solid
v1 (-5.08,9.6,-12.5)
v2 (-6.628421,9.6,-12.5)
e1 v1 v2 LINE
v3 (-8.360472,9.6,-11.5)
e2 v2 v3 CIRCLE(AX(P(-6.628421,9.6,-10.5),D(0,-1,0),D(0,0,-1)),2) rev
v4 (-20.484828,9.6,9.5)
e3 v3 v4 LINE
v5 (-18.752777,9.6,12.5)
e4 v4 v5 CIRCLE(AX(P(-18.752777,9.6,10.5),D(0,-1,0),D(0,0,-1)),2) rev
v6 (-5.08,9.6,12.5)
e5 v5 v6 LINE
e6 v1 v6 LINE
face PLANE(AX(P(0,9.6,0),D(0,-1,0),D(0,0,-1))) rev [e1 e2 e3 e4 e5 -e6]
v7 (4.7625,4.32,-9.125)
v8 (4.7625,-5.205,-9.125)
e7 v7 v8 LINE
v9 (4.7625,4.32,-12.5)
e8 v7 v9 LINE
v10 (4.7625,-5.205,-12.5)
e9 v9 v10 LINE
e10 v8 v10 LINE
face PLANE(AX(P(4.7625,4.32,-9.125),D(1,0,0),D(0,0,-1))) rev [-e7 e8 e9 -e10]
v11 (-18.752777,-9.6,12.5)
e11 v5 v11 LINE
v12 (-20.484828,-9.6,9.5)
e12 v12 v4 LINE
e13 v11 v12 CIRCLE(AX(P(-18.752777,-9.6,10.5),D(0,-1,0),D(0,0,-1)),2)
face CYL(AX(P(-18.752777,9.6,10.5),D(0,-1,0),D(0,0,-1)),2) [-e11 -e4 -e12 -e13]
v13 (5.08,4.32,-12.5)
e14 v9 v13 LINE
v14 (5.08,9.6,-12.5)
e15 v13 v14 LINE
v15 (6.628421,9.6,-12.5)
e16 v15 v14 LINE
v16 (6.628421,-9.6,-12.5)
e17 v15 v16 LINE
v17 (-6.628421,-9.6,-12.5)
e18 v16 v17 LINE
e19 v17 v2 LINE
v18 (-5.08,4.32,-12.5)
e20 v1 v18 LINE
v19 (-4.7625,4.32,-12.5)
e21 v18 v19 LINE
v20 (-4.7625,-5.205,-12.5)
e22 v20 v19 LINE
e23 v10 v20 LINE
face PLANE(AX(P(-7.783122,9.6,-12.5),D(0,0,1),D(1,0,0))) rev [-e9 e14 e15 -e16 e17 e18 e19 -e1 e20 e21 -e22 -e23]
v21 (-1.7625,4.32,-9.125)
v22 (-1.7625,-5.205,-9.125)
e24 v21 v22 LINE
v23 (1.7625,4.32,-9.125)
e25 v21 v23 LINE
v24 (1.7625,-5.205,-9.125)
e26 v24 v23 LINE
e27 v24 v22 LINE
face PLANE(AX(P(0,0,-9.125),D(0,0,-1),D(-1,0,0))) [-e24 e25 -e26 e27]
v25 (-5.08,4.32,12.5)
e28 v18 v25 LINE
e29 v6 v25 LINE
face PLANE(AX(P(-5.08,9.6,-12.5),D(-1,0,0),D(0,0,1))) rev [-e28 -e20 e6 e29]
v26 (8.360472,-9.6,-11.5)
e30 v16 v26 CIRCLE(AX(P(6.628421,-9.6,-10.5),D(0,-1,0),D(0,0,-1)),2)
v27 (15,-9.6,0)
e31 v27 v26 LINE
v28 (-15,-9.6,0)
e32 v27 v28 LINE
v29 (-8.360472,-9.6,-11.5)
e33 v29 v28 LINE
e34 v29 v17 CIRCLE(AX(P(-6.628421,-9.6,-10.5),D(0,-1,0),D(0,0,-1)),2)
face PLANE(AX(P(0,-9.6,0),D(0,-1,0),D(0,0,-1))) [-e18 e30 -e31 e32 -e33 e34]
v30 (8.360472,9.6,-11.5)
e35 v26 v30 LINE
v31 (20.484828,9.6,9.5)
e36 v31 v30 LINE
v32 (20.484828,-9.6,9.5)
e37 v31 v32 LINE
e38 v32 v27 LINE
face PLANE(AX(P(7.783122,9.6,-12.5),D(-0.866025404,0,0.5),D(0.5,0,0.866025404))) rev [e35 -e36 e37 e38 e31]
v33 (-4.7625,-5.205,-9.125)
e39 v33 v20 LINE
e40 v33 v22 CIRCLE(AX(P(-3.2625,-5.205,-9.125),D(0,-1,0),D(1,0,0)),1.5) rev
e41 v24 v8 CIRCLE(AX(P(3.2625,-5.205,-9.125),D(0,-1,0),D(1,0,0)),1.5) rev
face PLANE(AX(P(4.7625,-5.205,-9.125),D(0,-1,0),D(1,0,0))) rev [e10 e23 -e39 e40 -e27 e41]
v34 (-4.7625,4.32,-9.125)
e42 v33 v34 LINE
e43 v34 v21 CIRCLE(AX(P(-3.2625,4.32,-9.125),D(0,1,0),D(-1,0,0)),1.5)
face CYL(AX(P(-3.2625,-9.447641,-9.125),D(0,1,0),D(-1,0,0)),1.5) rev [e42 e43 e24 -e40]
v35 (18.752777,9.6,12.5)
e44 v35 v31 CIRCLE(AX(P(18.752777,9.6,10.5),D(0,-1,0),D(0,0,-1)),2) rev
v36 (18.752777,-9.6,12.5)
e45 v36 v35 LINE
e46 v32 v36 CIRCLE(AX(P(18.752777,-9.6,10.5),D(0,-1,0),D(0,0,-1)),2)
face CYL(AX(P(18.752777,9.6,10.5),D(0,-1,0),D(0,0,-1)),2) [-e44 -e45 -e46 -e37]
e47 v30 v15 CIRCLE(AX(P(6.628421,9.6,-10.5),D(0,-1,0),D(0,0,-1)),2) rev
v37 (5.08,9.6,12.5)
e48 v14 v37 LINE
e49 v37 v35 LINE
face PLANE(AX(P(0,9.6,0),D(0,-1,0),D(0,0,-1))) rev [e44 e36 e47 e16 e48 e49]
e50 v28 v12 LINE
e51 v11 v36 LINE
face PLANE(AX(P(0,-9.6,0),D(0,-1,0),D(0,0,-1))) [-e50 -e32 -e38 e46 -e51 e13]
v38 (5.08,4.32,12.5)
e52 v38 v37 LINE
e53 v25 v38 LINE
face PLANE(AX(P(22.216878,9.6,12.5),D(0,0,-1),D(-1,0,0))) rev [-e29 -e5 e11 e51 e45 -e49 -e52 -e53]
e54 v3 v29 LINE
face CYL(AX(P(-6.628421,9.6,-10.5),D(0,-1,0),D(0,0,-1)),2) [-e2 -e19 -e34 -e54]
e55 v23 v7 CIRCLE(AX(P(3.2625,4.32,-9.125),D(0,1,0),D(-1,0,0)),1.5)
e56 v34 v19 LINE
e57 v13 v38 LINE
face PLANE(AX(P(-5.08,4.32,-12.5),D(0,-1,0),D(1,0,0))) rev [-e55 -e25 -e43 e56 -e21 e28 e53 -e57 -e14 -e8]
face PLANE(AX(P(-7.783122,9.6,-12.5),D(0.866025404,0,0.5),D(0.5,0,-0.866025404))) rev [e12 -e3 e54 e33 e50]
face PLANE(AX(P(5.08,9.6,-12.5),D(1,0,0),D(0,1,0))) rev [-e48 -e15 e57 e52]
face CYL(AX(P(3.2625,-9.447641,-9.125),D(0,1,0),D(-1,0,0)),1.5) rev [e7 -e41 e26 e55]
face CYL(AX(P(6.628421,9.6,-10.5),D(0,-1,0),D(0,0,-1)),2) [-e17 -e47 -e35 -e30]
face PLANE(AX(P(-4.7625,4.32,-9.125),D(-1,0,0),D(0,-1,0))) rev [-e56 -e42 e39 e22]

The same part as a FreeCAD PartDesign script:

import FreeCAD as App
import Part
import Sketcher
from FreeCAD import Vector
Q = App.Units.Quantity


def edges_at(feature, points):
    """Names of the edges that pass closest to the given points."""
    edges = feature.Shape.Edges
    near = lambda p: min(range(len(edges)), key=lambda i: edges[i].distToShape(Part.Vertex(*p))[0])
    return sorted({f"Edge{near(p) + 1}" for p in points})


def add_polygon(sketch, points):
    """Adds a closed chain of lines whose ends are joined by coincident constraints."""
    first, n = sketch.GeometryCount, len(points)
    for a, b in zip(points, points[1:] + points[:1]):
        sketch.addGeometry(Part.LineSegment(App.Vector(*a, 0), App.Vector(*b, 0)), False)
    for i in range(n):
        sketch.addConstraint(Sketcher.Constraint("Coincident", first + i, 2, first + (i + 1) % n, 1))

doc = App.newDocument("Part")
params = doc.addObject("Spreadsheet::Sheet", "Params")
for row, (alias, value) in enumerate([
    ("pad1_length", "19.2 mm"),
    ("fillet_radius", "2 mm"),
    ("sketch2_width", "10.16 mm"),
    ("sketch2_height", "5.28 mm"),
    ("pocket2_length", "3.375 mm"),
    ("sketch4_diameter", "3 mm"),
    ("pocket3_length", "9.525 mm"),
], start=1):
    params.set(f"A{row}", alias)
    params.set(f"B{row}", "=" + value)
    params.setAlias(f"B{row}", alias)

body = doc.addObject("PartDesign::Body", "Body")

# Sketch on XZ plane
sketch1 = body.newObject("Sketcher::SketchObject", "Sketch")
sketch1.AttachmentSupport = (doc.getObject("XZ_Plane"), [""])
sketch1.MapMode = "FlatFace"
add_polygon(sketch1, [(22, 12), (8, -12), (-8, -12), (-22, 12)])  # lines 0-3
sketch1.addConstraint([
    Sketcher.Constraint("Horizontal", 1),
    Sketcher.Constraint("Horizontal", 3),
    Sketcher.Constraint("Equal", 0, 2),
    Sketcher.Constraint("Angle", 0, Q("-120 deg")),
    Sketcher.Constraint("DistanceY", 1, 2, 2, 2, Q("25 mm")),
    Sketcher.Constraint("DistanceX", 2, 2, 0, 2, Q("30 mm")),
    Sketcher.Constraint("DistanceY", 0, 2, -1, 1, Q("12.5 mm")),
    Sketcher.Constraint("DistanceX", -1, 1, 0, 2, Q("7.783122 mm")),
])
pad1 = body.newObject("PartDesign::Pad", "Pad")
pad1.Profile = sketch1
pad1.setExpression("Length", "Params.pad1_length")
pad1.Midplane = True
doc.recompute()

fillet = body.newObject("PartDesign::Fillet", "Fillet")
fillet.Base = (pad1, edges_at(pad1, [
    (-22.217, 0, 12.5),
    (-7.783, 0, -12.5),
    (7.783, 0, -12.5),
    (22.217, 0, 12.5),
]))
fillet.setExpression("Radius", "Params.fillet_radius")

# Sketch on XY plane
sketch2 = body.newObject("Sketcher::SketchObject", "Sketch001")
sketch2.AttachmentSupport = (doc.getObject("XY_Plane"), [""])
sketch2.MapMode = "FlatFace"
sketch2.AttachmentOffset = App.Placement(Vector(0, 0, 12.5), App.Rotation())
add_polygon(sketch2, [(-5, 10), (-5, 4), (5, 4), (5, 10)])  # lines 0-3
sketch2.addConstraint([
    Sketcher.Constraint("Vertical", 0),
    Sketcher.Constraint("Horizontal", 1),
    Sketcher.Constraint("Vertical", 2),
    Sketcher.Constraint("Horizontal", 3),
    Sketcher.Constraint("DistanceX", 1, 1, 1, 2, Q("10.16 mm")),
    Sketcher.Constraint("DistanceY", 0, 2, 0, 1, Q("5.28 mm")),
    Sketcher.Constraint("DistanceY", -1, 1, 2, 2, Q("9.6 mm")),
    Sketcher.Constraint("DistanceX", 0, 2, -1, 1, Q("5.08 mm")),
])
sketch2.setExpression("Constraints[8]", "Params.sketch2_width")
sketch2.setExpression("Constraints[9]", "Params.sketch2_height")
pocket1 = body.newObject("PartDesign::Pocket", "Pocket")
pocket1.Profile = sketch2
pocket1.Type = "ThroughAll"

# Sketch on XY plane
sketch3 = body.newObject("Sketcher::SketchObject", "Sketch002")
sketch3.AttachmentSupport = (doc.getObject("XY_Plane"), [""])
sketch3.MapMode = "FlatFace"
sketch3.AttachmentOffset = App.Placement(Vector(0, 0, -12.5), App.Rotation())
add_polygon(sketch3, [(5, 4), (5, -5), (-5, -5), (-5, 4)])  # lines 0-3
sketch3.addConstraint([
    Sketcher.Constraint("Vertical", 0),
    Sketcher.Constraint("Horizontal", 1),
    Sketcher.Constraint("Vertical", 2),
    Sketcher.Constraint("Horizontal", 3),
    Sketcher.Constraint("Equal", 3, 0),
    Sketcher.Constraint("DistanceX", 1, 2, 1, 1, Q("9.525 mm")),
    Sketcher.Constraint("DistanceY", -1, 1, 2, 2, Q("4.32 mm")),
    Sketcher.Constraint("DistanceX", -1, 1, 0, 2, Q("4.7625 mm")),
])
pocket2 = body.newObject("PartDesign::Pocket", "Pocket001")
pocket2.Profile = sketch3
pocket2.setExpression("Length", "Params.pocket2_length")
pocket2.Reversed = True

# Sketch on XZ plane
sketch4 = body.newObject("Sketcher::SketchObject", "Sketch003")
sketch4.AttachmentSupport = (doc.getObject("XZ_Plane"), [""])
sketch4.MapMode = "FlatFace"
sketch4.AttachmentOffset = App.Placement(Vector(0, 0, -4.32), App.Rotation())
sketch4.addGeometry([
    Part.Circle(Vector(3.3, -9.1, 0), Vector(0, 0, 1), 1.5),
    Part.Circle(Vector(-3.3, -9.1, 0), Vector(0, 0, 1), 1.5),
], False)
sketch4.addConstraint([
    Sketcher.Constraint("Equal", 0, 1),
    Sketcher.Constraint("Symmetric", 0, 3, 1, 3, -2),
    Sketcher.Constraint("Diameter", 0, Q("3 mm")),
    Sketcher.Constraint("DistanceY", 0, 3, -1, 1, Q("9.125 mm")),
    Sketcher.Constraint("DistanceX", 1, 3, 0, 3, Q("6.525 mm")),
])
sketch4.setExpression("Constraints[2]", "Params.sketch4_diameter")
pocket3 = body.newObject("PartDesign::Pocket", "Pocket002")
pocket3.Profile = sketch4
pocket3.setExpression("Length", "Params.pocket3_length")
pocket3.Reversed = True

doc.recompute()
